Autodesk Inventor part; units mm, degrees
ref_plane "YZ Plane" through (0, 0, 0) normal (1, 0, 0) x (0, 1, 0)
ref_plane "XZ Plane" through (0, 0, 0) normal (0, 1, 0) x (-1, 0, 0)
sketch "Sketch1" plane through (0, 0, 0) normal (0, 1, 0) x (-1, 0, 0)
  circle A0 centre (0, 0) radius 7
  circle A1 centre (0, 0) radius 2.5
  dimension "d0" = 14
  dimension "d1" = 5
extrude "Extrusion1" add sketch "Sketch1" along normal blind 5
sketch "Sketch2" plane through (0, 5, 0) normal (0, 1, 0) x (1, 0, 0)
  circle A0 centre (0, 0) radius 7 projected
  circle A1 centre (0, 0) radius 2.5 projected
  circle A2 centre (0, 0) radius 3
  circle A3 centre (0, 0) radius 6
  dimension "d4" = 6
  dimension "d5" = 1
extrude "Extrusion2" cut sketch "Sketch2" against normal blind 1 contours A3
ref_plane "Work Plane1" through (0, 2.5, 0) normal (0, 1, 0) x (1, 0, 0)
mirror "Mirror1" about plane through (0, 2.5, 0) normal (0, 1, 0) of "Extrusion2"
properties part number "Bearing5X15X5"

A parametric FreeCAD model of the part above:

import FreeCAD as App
import Part
import Sketcher
from FreeCAD import Vector

doc = App.newDocument("Part")
body = doc.addObject("PartDesign::Body", "Body")

# Sketch on XZ plane
sketch1 = body.newObject("Sketcher::SketchObject", "Sketch")
sketch1.AttachmentSupport = (doc.getObject("XZ_Plane"), [""])
sketch1.MapMode = "FlatFace"
sketch1.addGeometry([
    Part.Circle(Vector(0, 0, 0), Vector(0, 0, 1), 7),
    Part.Circle(Vector(0, 0, 0), Vector(0, 0, 1), 2.5),
], False)
sketch1.addConstraint([
    Sketcher.Constraint("Coincident", 0, 3, -1, 1),
    Sketcher.Constraint("Coincident", 1, 3, -1, 1),
    Sketcher.Constraint("Diameter", 0, 14.0),
    Sketcher.Constraint("Diameter", 1, 5.0),
])
pad1 = body.newObject("PartDesign::Pad", "Pad")
pad1.Profile = sketch1
pad1.Length = 5
pad1.Reversed = True

# Sketch on XZ plane
sketch2 = body.newObject("Sketcher::SketchObject", "Sketch001")
sketch2.AttachmentSupport = (doc.getObject("XZ_Plane"), [""])
sketch2.MapMode = "FlatFace"
sketch2.AttachmentOffset = App.Placement(Vector(0, 0, -5), App.Rotation())
sketch2.addGeometry([
    Part.Circle(Vector(0, 0, 0), Vector(0, 0, 1), 6),
    Part.Circle(Vector(0, 0, 0), Vector(0, 0, 1), 3),
], False)
sketch2.addConstraint([
    Sketcher.Constraint("Coincident", 0, 3, -1, 1),
    Sketcher.Constraint("Coincident", 1, 3, -1, 1),
    Sketcher.Constraint("Diameter", 0, 12.0),
    Sketcher.Constraint("Diameter", 1, 6.0),
])
pocket1 = body.newObject("PartDesign::Pocket", "Pocket")
pocket1.Profile = sketch2
pocket1.Length = 1
pocket1.Reversed = True
doc.recompute()

datumplane = body.newObject("PartDesign::Plane", "DatumPlane")
datumplane.AttachmentSupport = (doc.getObject("XZ_Plane"), [""])
datumplane.MapMode = "FlatFace"
datumplane.AttachmentOffset = App.Placement(Vector(0, 0, -2.5), App.Rotation())
mirrored = body.newObject("PartDesign::Mirrored", "Mirrored")
mirrored.Originals = [pocket1]
mirrored.MirrorPlane = (datumplane, [""])
body.Tip = mirrored

doc.recompute()
